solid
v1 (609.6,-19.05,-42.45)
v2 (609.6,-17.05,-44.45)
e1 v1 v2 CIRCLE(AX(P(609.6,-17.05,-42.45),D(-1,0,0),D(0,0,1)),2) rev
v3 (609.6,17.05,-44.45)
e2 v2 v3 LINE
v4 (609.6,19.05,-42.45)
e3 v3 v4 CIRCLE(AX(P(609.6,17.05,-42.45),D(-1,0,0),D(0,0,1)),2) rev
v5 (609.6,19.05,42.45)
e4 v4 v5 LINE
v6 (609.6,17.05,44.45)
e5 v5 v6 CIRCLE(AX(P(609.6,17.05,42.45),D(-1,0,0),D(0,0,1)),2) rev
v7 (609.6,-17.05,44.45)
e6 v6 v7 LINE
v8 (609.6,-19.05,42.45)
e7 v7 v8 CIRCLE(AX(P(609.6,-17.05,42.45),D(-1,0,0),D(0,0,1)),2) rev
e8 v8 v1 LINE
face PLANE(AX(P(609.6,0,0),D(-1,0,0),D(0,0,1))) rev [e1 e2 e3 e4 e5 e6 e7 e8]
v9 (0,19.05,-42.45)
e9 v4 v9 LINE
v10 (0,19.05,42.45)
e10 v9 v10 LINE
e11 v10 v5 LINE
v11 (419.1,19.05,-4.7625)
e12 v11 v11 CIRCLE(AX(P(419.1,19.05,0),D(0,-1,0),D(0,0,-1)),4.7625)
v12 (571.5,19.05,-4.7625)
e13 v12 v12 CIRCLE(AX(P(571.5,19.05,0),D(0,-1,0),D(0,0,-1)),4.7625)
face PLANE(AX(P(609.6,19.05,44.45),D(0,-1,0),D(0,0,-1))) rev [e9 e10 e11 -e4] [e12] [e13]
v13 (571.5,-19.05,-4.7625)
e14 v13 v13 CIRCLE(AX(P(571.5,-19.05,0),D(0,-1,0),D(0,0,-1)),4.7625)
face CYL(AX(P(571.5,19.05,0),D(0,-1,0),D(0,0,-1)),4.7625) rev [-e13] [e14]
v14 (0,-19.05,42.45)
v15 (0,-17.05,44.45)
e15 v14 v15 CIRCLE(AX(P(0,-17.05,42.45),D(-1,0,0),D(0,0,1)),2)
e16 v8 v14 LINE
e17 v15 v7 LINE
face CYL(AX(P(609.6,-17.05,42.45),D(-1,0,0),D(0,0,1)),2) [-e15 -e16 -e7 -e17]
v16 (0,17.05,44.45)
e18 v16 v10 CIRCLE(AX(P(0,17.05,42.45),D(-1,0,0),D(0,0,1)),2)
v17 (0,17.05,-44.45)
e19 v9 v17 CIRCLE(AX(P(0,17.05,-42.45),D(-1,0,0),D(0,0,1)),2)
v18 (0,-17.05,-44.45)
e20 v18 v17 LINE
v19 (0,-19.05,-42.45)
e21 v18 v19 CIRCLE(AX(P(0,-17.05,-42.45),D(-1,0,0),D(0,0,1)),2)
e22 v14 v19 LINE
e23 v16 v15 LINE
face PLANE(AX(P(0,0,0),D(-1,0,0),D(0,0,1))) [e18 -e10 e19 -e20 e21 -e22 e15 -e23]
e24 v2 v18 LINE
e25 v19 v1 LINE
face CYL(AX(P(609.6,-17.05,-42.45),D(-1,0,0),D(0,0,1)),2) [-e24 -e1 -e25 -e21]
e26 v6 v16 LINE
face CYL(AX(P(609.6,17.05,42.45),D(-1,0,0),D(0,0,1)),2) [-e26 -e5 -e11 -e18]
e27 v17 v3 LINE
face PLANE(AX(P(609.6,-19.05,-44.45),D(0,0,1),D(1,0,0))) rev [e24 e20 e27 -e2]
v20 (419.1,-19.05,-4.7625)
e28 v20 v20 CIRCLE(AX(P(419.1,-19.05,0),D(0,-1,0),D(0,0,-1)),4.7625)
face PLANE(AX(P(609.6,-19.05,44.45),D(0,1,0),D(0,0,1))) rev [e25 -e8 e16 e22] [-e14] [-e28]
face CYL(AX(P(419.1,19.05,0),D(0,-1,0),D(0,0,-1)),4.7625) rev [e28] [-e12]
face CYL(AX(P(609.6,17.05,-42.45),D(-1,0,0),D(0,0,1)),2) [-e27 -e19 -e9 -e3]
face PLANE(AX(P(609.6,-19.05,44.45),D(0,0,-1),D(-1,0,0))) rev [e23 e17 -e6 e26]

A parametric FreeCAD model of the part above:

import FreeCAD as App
import Part
import Sketcher

V = App.Vector
Q = App.Units.Quantity


def edges_at(feature, points):
    """Names of the edges that pass closest to the given points."""
    edges = feature.Shape.Edges
    near = lambda p: min(range(len(edges)), key=lambda i: edges[i].distToShape(Part.Vertex(*p))[0])
    return sorted({f"Edge{near(p) + 1}" for p in points})

doc = App.newDocument("Part")
params = doc.addObject("Spreadsheet::Sheet", "Params")
for row, (alias, value) in enumerate([
    ("sketch1_width", "1.5 in"),
    ("sketch1_height", "3.5 in"),
    ("pad1_length", "24 in"),
    ("fillet_radius", "2 mm"),
    ("sketch2_diameter", "0.375 in"),
], start=1):
    params.set(f"A{row}", alias)
    params.set(f"B{row}", "=" + value)
    params.setAlias(f"B{row}", alias)

body = doc.addObject("PartDesign::Body", "Body")

sketch1 = body.newObject("Sketcher::SketchObject", "Sketch")
sketch1.AttachmentSupport = (doc.getObject("YZ_Plane"), [""])
sketch1.MapMode = "FlatFace"
sketch1.addGeometry([
    Part.LineSegment(V(19, 44, 0), V(-19, 44, 0)),
    Part.LineSegment(V(-19, 44, 0), V(-19, -44, 0)),
    Part.LineSegment(V(-19, -44, 0), V(19, -44, 0)),
    Part.LineSegment(V(19, -44, 0), V(19, 44, 0)),
], False)
sketch1.addConstraint([
    Sketcher.Constraint("Coincident", 0, 2, 1, 1),
    Sketcher.Constraint("Coincident", 1, 2, 2, 1),
    Sketcher.Constraint("Coincident", 2, 2, 3, 1),
    Sketcher.Constraint("Coincident", 3, 2, 0, 1),
    Sketcher.Constraint("Horizontal", 0),
    Sketcher.Constraint("Vertical", 1),
    Sketcher.Constraint("Horizontal", 2),
    Sketcher.Constraint("Vertical", 3),
    Sketcher.Constraint("Symmetric", 0, 2, 2, 2, -1, 1),
    Sketcher.Constraint("DistanceX", 0, 2, 0, 1, Q("1.5 in")),
    Sketcher.Constraint("DistanceY", 1, 2, 1, 1, Q("3.5 in")),
])
sketch1.setExpression("Constraints[9]", "Params.sketch1_width")
sketch1.setExpression("Constraints[10]", "Params.sketch1_height")
pad1 = body.newObject("PartDesign::Pad", "Pad")
pad1.Profile = sketch1
pad1.setExpression("Length", "Params.pad1_length")
doc.recompute()

fillet = body.newObject("PartDesign::Fillet", "Fillet")
fillet.Base = (pad1, edges_at(pad1, [
    (304.8, -19.05, -44.45),
    (304.8, -19.05, 44.45),
    (304.8, 19.05, 44.45),
    (304.8, 19.05, -44.45),
]))
fillet.setExpression("Radius", "Params.fillet_radius")

sketch2 = body.newObject("Sketcher::SketchObject", "Sketch001")
sketch2.AttachmentSupport = (doc.getObject("XZ_Plane"), [""])
sketch2.MapMode = "FlatFace"
sketch2.AttachmentOffset = App.Placement(V(0, 0, 0.75 * 25.4), App.Rotation())
sketch2.addGeometry([
    Part.Circle(V(419.1, 0, 0), V(0, 0, 1), 4.8),
    Part.Circle(V(571.5, 0, 0), V(0, 0, 1), 4.8),
], False)
sketch2.addConstraint([
    Sketcher.Constraint("Equal", 0, 1),
    Sketcher.Constraint("PointOnObject", 0, 3, -1),
    Sketcher.Constraint("PointOnObject", 1, 3, -1),
    Sketcher.Constraint("Diameter", 0, Q("0.375 in")),
    Sketcher.Constraint("DistanceX", 0, 3, 1, 3, Q("6 in")),
    Sketcher.Constraint("DistanceX", -1, 1, 0, 3, Q("16.5 in")),
])
sketch2.setExpression("Constraints[3]", "Params.sketch2_diameter")
pocket1 = body.newObject("PartDesign::Pocket", "Pocket")
pocket1.Profile = sketch2
pocket1.Type = "ThroughAll"

doc.recompute()
